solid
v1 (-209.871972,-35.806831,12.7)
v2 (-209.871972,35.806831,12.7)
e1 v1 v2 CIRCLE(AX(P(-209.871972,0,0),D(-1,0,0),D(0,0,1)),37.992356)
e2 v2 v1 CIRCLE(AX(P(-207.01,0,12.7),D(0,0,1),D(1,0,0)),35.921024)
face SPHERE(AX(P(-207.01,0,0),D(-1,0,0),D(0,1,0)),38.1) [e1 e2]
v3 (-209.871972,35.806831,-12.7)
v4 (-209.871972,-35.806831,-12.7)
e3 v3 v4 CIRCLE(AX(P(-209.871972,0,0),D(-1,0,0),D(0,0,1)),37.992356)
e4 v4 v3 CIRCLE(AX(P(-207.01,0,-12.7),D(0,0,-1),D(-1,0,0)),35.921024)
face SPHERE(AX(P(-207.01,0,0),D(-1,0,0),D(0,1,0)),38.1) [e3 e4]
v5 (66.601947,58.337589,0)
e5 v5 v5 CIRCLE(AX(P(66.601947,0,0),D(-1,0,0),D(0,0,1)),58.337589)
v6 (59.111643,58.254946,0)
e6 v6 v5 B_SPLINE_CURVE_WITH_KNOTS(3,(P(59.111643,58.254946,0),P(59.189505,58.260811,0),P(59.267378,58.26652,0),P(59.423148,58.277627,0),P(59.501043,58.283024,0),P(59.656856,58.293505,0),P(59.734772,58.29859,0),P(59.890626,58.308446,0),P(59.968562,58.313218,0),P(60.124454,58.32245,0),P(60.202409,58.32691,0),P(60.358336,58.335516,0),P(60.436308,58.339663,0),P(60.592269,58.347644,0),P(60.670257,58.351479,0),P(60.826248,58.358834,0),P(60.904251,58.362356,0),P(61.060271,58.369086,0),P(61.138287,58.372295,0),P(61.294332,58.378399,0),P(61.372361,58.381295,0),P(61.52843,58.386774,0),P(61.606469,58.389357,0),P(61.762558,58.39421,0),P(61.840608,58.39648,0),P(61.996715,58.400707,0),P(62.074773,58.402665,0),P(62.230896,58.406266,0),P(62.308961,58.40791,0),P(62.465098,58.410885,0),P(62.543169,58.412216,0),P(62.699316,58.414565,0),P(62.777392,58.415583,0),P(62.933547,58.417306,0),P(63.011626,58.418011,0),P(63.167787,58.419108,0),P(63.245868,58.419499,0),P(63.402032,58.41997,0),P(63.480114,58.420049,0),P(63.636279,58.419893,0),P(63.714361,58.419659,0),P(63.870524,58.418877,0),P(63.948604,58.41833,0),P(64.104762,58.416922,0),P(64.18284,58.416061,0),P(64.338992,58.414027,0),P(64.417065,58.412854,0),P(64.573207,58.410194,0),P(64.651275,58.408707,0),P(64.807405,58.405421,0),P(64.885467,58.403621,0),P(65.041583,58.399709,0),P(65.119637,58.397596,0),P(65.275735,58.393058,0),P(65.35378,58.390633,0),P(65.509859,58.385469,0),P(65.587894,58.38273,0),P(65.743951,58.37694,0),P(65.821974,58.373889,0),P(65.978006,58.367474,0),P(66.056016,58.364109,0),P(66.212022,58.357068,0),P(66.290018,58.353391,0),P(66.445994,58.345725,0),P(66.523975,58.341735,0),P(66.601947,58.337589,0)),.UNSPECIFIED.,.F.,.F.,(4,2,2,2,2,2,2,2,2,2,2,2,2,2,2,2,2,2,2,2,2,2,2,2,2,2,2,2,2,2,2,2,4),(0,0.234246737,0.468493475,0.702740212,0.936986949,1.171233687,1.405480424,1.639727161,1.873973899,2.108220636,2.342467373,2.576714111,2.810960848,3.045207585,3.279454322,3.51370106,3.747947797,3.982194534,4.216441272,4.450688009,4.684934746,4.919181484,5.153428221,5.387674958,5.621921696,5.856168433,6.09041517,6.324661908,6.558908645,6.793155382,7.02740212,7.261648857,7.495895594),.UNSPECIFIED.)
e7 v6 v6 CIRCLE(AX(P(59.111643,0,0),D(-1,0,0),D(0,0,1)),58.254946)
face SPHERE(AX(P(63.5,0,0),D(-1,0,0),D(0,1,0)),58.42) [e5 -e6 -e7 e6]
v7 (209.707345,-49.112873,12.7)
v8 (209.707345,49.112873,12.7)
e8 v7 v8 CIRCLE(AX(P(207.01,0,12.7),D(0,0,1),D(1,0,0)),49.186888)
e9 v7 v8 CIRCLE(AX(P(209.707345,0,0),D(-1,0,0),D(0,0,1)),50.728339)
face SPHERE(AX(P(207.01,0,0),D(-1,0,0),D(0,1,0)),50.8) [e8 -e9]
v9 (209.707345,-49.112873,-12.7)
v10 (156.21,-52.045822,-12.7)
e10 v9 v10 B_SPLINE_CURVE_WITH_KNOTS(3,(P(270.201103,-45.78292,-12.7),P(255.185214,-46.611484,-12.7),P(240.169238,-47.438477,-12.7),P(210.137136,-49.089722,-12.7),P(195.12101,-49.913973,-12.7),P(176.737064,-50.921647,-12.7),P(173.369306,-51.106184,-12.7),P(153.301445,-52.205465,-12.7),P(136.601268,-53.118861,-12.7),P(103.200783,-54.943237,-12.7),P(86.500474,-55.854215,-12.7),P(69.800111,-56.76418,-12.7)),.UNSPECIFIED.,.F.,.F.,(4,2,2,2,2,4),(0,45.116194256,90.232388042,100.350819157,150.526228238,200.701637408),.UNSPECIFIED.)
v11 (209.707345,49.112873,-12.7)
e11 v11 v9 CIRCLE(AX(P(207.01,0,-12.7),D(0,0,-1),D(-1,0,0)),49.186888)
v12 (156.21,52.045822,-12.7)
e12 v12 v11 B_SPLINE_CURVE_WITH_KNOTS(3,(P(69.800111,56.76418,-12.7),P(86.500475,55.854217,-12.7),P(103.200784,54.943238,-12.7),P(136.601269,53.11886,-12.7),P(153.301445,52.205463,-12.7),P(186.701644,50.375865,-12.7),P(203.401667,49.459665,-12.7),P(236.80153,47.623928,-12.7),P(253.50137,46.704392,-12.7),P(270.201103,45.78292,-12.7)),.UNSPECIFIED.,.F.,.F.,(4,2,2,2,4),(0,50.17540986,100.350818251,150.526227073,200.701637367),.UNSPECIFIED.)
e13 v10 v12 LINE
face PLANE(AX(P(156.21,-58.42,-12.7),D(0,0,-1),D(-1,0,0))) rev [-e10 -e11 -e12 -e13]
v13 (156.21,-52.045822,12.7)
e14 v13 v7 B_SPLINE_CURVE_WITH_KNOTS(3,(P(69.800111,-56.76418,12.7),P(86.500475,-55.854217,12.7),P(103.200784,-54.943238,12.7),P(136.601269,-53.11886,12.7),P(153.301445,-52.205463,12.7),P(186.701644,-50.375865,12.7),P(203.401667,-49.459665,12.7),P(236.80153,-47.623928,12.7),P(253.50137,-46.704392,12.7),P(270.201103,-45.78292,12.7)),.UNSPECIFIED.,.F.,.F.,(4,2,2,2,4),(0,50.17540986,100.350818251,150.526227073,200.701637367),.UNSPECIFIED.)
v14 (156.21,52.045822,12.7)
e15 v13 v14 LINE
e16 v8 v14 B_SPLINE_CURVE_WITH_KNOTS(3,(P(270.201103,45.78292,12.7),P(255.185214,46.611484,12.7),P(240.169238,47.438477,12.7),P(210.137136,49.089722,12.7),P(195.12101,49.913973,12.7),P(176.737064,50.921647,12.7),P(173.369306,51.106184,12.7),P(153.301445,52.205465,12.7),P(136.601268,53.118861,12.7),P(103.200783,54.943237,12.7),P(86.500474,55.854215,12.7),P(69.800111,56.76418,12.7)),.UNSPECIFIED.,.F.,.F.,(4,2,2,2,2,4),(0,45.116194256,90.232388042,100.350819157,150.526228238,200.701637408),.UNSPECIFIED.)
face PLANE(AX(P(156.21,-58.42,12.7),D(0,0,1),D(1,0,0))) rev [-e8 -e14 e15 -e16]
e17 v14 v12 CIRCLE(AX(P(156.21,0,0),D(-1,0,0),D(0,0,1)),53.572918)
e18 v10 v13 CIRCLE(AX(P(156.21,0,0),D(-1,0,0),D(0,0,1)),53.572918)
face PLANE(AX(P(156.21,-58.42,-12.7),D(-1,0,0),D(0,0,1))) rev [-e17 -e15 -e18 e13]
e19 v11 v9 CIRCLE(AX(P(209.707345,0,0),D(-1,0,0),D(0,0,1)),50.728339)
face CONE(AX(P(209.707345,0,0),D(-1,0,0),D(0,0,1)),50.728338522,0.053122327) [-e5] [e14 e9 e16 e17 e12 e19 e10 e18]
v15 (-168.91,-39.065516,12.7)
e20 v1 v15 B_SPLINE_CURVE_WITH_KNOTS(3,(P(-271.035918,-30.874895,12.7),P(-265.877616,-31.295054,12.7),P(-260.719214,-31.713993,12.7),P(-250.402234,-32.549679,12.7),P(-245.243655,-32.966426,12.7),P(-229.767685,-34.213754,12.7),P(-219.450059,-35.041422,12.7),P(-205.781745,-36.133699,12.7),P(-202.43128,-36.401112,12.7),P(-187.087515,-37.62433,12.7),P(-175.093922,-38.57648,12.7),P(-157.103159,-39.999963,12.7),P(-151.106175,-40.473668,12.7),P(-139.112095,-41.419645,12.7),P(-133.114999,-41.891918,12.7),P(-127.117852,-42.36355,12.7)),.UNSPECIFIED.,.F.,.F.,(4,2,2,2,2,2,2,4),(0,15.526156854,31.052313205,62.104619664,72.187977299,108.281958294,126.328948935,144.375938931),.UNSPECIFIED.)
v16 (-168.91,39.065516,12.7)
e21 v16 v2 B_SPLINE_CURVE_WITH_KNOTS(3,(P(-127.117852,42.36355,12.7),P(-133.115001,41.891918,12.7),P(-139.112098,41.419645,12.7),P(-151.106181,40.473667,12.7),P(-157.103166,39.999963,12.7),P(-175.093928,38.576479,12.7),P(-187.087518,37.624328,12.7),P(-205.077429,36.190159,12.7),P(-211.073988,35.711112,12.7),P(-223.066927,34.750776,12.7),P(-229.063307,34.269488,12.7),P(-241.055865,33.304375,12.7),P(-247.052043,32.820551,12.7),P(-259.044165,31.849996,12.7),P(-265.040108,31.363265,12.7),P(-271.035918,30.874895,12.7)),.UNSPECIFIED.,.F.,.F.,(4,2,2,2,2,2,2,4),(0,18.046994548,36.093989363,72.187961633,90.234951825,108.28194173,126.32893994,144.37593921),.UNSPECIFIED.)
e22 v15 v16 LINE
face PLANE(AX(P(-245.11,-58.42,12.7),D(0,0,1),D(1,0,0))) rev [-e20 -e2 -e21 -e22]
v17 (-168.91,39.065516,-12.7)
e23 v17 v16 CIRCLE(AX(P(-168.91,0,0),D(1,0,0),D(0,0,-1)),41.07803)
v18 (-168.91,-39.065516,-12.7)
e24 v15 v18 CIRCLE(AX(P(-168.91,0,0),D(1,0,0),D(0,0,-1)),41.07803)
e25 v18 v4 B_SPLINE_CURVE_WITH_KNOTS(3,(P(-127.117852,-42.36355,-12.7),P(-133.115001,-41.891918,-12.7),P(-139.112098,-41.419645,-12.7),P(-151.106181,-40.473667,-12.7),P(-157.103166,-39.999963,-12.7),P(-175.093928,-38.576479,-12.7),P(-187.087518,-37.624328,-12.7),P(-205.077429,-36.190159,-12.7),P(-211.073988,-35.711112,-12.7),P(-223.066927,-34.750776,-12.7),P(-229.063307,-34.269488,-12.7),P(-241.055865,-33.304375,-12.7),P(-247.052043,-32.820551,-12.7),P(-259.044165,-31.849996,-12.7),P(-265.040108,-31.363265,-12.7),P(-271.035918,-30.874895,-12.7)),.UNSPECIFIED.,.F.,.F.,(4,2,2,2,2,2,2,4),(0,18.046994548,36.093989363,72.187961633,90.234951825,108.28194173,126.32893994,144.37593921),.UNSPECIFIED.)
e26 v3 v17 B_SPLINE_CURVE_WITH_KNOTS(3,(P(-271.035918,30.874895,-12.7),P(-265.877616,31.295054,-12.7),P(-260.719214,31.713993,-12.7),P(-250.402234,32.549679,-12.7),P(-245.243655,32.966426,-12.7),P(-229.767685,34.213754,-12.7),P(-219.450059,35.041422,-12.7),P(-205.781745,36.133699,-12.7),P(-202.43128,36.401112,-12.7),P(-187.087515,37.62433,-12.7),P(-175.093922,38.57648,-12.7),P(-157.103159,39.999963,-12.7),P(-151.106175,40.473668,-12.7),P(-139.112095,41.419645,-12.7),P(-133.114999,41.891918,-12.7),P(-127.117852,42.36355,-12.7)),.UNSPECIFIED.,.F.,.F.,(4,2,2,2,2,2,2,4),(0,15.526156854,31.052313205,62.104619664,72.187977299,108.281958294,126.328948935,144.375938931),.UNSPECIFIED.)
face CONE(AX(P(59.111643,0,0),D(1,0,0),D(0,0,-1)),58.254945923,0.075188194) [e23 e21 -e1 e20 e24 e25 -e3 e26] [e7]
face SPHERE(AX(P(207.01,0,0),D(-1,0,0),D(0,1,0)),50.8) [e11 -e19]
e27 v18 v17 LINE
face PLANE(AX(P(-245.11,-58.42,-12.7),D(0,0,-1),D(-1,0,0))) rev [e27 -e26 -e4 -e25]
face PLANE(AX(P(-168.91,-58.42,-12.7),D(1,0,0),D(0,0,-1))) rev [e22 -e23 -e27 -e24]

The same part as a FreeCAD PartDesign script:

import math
import FreeCAD as App
import Part
import Sketcher

V = App.Vector
Q = App.Units.Quantity


def add_polygon(sketch, points):
    """Adds a closed chain of lines whose ends are joined by coincident constraints."""
    first, n = sketch.GeometryCount, len(points)
    for a, b in zip(points, points[1:] + points[:1]):
        sketch.addGeometry(Part.LineSegment(App.Vector(*a, 0), App.Vector(*b, 0)), False)
    for i in range(n):
        sketch.addConstraint(Sketcher.Constraint("Coincident", first + i, 2, first + (i + 1) % n, 1))

doc = App.newDocument("Part")
body = doc.addObject("PartDesign::Body", "Body")

# Sketch on XY plane
sketch1 = body.newObject("Sketcher::SketchObject", "Sketch")
sketch1.AttachmentSupport = (doc.getObject("XY_Plane"), [""])
sketch1.MapMode = "FlatFace"
sketch1.addGeometry([
    Part.ArcOfCircle(Part.Circle(V(207, 0, 0), V(0, 0, 1), 51), math.radians(0), math.radians(87)),  # 0
    Part.LineSegment(V(210, 51, 0), V(67, 58, 0)),  # 1
    Part.ArcOfCircle(Part.Circle(V(64, 0, 0), V(0, 0, 1), 58), math.radians(86.96), math.radians(94.31)),  # 2
    Part.LineSegment(V(59, 58, 0), V(-210, 38, 0)),  # 3
    Part.ArcOfCircle(Part.Circle(V(-207, 0, 0), V(0, 0, 1), 38), math.radians(94), math.radians(180)),  # 4
    Part.LineSegment(V(-245, 0, 0), V(258, 0, 0)),  # 5
], False)
sketch1.addConstraint([
    Sketcher.Constraint("Tangent", 0, 2, 1, 1),
    Sketcher.Constraint("Tangent", 1, 2, 2, 1),
    Sketcher.Constraint("Tangent", 2, 2, 3, 1),
    Sketcher.Constraint("Tangent", 3, 2, 4, 1),
    Sketcher.Constraint("Coincident", 4, 2, 5, 1),
    Sketcher.Constraint("Coincident", 5, 2, 0, 1),
    Sketcher.Constraint("Horizontal", 5),
    Sketcher.Constraint("Symmetric", 0, 3, 4, 3, -1, 1),
    Sketcher.Constraint("PointOnObject", 0, 3, -1),
    Sketcher.Constraint("PointOnObject", 2, 3, -1),
    Sketcher.Constraint("PointOnObject", 4, 2, -1),
    Sketcher.Constraint("Radius", 0, Q("2 in")),
    Sketcher.Constraint("Radius", 2, Q("2.3 in")),
    Sketcher.Constraint("Radius", 4, Q("1.5 in")),
    Sketcher.Constraint("DistanceX", 5, 1, 5, 2, Q("19.8 in")),
    Sketcher.Constraint("DistanceX", -1, 1, 2, 3, Q("2.5 in")),
])
revolution = body.newObject("PartDesign::Revolution", "Revolution")
revolution.Profile = sketch1
revolution.ReferenceAxis = (sketch1, ["H_Axis"])
revolution.Angle = 360

# Sketch on XZ plane
sketch2 = body.newObject("Sketcher::SketchObject", "Sketch001")
sketch2.AttachmentSupport = (doc.getObject("XZ_Plane"), [""])
sketch2.MapMode = "FlatFace"
add_polygon(sketch2, [(156, -13), (156, 13), (258, 13), (258, -13)])  # lines 0-3
add_polygon(sketch2, [(-245, -13), (-245, 13), (-169, 13), (-169, -13)])  # lines 4-7
sketch2.addConstraint([
    Sketcher.Constraint("Vertical", 0),
    Sketcher.Constraint("Horizontal", 1),
    Sketcher.Constraint("Vertical", 2),
    Sketcher.Constraint("Horizontal", 3),
    Sketcher.Constraint("Vertical", 4),
    Sketcher.Constraint("Horizontal", 5),
    Sketcher.Constraint("Vertical", 6),
    Sketcher.Constraint("Horizontal", 7),
    Sketcher.Constraint("Horizontal", 1, 2, 4, 2),
    Sketcher.Constraint("Horizontal", 3, 2, 6, 2),
    Sketcher.Constraint("DistanceX", 1, 1, 1, 2, Q("4 in")),
    Sketcher.Constraint("DistanceX", 5, 1, 5, 2, Q("3 in")),
    Sketcher.Constraint("DistanceY", 0, 1, 0, 2, Q("1 in")),
    Sketcher.Constraint("DistanceY", -1, 1, 0, 2, Q("0.5 in")),
    Sketcher.Constraint("DistanceX", 4, 2, 0, 2, Q("15.8 in")),
    Sketcher.Constraint("DistanceX", -1, 1, 0, 2, Q("6.15 in")),
])
pocket1 = body.newObject("PartDesign::Pocket", "Pocket")
pocket1.Profile = sketch2
pocket1.Type = "ThroughAll"
pocket1.Midplane = True

doc.recompute()
